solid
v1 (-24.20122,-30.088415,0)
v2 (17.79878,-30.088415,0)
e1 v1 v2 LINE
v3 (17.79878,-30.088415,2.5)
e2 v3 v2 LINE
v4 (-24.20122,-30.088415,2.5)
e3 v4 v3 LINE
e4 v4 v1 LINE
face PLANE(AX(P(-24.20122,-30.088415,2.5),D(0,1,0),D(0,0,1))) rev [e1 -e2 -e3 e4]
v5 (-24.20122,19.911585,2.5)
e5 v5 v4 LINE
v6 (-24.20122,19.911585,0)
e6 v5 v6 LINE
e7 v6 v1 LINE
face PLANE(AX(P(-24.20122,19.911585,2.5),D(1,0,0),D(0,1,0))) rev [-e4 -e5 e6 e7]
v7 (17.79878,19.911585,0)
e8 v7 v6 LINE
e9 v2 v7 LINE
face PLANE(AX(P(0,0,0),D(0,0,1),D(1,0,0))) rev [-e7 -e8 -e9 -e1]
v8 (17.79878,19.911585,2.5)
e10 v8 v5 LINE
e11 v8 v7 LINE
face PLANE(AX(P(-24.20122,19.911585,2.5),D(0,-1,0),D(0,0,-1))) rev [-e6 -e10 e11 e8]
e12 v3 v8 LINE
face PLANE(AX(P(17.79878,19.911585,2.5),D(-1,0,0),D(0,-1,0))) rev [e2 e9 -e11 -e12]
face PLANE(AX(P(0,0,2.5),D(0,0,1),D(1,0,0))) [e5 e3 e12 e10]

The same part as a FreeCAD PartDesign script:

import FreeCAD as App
import Part
import Sketcher
from FreeCAD import Vector
Q = App.Units.Quantity


def add_polygon(sketch, points):
    """Adds a closed chain of lines whose ends are joined by coincident constraints."""
    first, n = sketch.GeometryCount, len(points)
    for a, b in zip(points, points[1:] + points[:1]):
        sketch.addGeometry(Part.LineSegment(App.Vector(*a, 0), App.Vector(*b, 0)), False)
    for i in range(n):
        sketch.addConstraint(Sketcher.Constraint("Coincident", first + i, 2, first + (i + 1) % n, 1))

doc = App.newDocument("Part")
body = doc.addObject("PartDesign::Body", "Body")

sketch1 = body.newObject("Sketcher::SketchObject", "Sketch")
sketch1.AttachmentSupport = (doc.getObject("XY_Plane"), [""])
sketch1.MapMode = "FlatFace"
add_polygon(sketch1, [(-24.20122, 19.911585), (-24.20122, -30.088415), (17.79878, -30.088415), (17.79878, 19.911585)])
sketch1.addConstraint([
    Sketcher.Constraint("Vertical", 0),
    Sketcher.Constraint("Horizontal", 1),
    Sketcher.Constraint("Vertical", 2),
    Sketcher.Constraint("Horizontal", 3),
    Sketcher.Constraint("DistanceX", 1, 1, 1, 2, Q("42 mm")),
    Sketcher.Constraint("DistanceY", 0, 2, 0, 1, Q("50 mm")),
    Sketcher.Constraint("DistanceX", 0, 2, -1, 1, Q("24.20122 mm")),
    Sketcher.Constraint("DistanceY", 0, 2, -1, 1, Q("30.088415 mm")),
])
pad1 = body.newObject("PartDesign::Pad", "Pad")
pad1.Profile = sketch1
pad1.Length = 2.5

doc.recompute()
